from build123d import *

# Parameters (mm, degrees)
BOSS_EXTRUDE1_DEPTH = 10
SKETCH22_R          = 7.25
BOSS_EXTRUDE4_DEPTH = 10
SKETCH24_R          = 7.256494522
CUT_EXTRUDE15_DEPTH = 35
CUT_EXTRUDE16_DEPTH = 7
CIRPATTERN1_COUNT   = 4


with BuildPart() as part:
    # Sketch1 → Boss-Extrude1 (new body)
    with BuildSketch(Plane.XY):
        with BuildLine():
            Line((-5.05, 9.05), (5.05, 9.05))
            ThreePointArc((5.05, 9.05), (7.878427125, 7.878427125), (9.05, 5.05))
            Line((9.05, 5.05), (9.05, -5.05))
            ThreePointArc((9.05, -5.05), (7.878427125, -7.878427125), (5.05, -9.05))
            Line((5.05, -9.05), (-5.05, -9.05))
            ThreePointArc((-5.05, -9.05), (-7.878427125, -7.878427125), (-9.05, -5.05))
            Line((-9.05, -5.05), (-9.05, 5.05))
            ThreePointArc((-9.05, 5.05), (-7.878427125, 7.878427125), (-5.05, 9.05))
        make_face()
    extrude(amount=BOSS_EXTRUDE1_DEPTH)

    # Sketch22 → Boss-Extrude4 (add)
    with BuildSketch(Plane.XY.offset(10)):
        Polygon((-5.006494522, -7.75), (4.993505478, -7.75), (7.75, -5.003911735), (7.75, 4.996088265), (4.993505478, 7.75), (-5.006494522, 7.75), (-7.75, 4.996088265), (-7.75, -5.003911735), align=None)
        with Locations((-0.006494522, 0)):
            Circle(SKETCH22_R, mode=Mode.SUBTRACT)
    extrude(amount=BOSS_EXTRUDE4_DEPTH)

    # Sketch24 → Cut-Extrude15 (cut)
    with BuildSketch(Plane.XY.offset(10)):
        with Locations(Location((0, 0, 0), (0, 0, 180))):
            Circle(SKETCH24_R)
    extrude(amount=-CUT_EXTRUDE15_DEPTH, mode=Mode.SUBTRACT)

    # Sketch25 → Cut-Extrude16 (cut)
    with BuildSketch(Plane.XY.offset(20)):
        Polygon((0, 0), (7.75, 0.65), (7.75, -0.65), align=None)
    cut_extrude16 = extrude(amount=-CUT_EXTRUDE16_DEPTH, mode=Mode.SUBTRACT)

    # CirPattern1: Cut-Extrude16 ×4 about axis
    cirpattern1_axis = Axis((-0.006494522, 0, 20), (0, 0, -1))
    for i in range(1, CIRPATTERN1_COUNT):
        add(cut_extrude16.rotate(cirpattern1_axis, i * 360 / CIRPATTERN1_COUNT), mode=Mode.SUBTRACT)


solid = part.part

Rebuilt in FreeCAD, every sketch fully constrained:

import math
import FreeCAD as App
import Part
import Sketcher
from FreeCAD import Vector

doc = App.newDocument("Part")
params = doc.addObject("Spreadsheet::Sheet", "Params")
for row, (alias, value) in enumerate([
    ("sketch1_radius", "4 mm"),
    ("sketch1_width", "10.1 mm"),
    ("pad1_length", "10 mm"),
    ("sketch2_diameter", "14.5 mm"),
    ("sketch2_width", "10 mm"),
    ("pad2_length", "10 mm"),
    ("pocket1_length", "35 mm"),
    ("sketch4_height", "1.3 mm"),
    ("pocket2_length", "7 mm"),
], start=1):
    params.set(f"A{row}", alias)
    params.set(f"B{row}", "=" + value)
    params.setAlias(f"B{row}", alias)

body = doc.addObject("PartDesign::Body", "Body")

# Sketch on XY plane
sketch1 = body.newObject("Sketcher::SketchObject", "Sketch")
sketch1.AttachmentSupport = (doc.getObject("XY_Plane"), [""])
sketch1.MapMode = "FlatFace"
sketch1.addGeometry(Part.LineSegment(Vector(5.05, 9.05, 0), Vector(-5.05, 9.05, 0)), False)
sketch1.addGeometry(Part.ArcOfCircle(Part.Circle(Vector(-5.05, 5.05, 0), Vector(0, 0, 1), 4), math.radians(90), math.radians(180)), False)
sketch1.addGeometry(Part.LineSegment(Vector(-9.05, 5.05, 0), Vector(-9.05, -5.05, 0)), False)
sketch1.addGeometry(Part.ArcOfCircle(Part.Circle(Vector(-5.05, -5.05, 0), Vector(0, 0, 1), 4), math.radians(180), math.radians(270)), False)
sketch1.addGeometry(Part.LineSegment(Vector(-5.05, -9.05, 0), Vector(5.05, -9.05, 0)), False)
sketch1.addGeometry(Part.ArcOfCircle(Part.Circle(Vector(5.05, -5.05, 0), Vector(0, 0, 1), 4), math.radians(-90), math.radians(0)), False)
sketch1.addGeometry(Part.LineSegment(Vector(9.05, -5.05, 0), Vector(9.05, 5.05, 0)), False)
sketch1.addGeometry(Part.ArcOfCircle(Part.Circle(Vector(5.05, 5.05, 0), Vector(0, 0, 1), 4), math.radians(0), math.radians(90)), False)
sketch1.addConstraint(Sketcher.Constraint("Tangent", 0, 2, 1, 1))
sketch1.addConstraint(Sketcher.Constraint("Tangent", 1, 2, 2, 1))
sketch1.addConstraint(Sketcher.Constraint("Tangent", 2, 2, 3, 1))
sketch1.addConstraint(Sketcher.Constraint("Tangent", 3, 2, 4, 1))
sketch1.addConstraint(Sketcher.Constraint("Tangent", 4, 2, 5, 1))
sketch1.addConstraint(Sketcher.Constraint("Tangent", 5, 2, 6, 1))
sketch1.addConstraint(Sketcher.Constraint("Tangent", 6, 2, 7, 1))
sketch1.addConstraint(Sketcher.Constraint("Tangent", 7, 2, 0, 1))
sketch1.addConstraint(Sketcher.Constraint("Horizontal", 0))
sketch1.addConstraint(Sketcher.Constraint("Vertical", 2))
sketch1.addConstraint(Sketcher.Constraint("Horizontal", 4))
sketch1.addConstraint(Sketcher.Constraint("Vertical", 6))
sketch1.addConstraint(Sketcher.Constraint("Equal", 1, 3))
sketch1.addConstraint(Sketcher.Constraint("Equal", 3, 5))
sketch1.addConstraint(Sketcher.Constraint("Equal", 5, 7))
sketch1.addConstraint(Sketcher.Constraint("Symmetric", 1, 3, 5, 3, -1, 1))
sketch1.addConstraint(Sketcher.Constraint("Equal", 4, 2))
sketch1.addConstraint(Sketcher.Constraint("Radius", 1, 4.0))
sketch1.addConstraint(Sketcher.Constraint("DistanceX", 0, 2, 0, 1, 10.1))
sketch1.setExpression("Constraints[17]", "Params.sketch1_radius")
sketch1.setExpression("Constraints[18]", "Params.sketch1_width")
pad1 = body.newObject("PartDesign::Pad", "Pad")
pad1.Profile = sketch1
pad1.setExpression("Length", "Params.pad1_length")

# Sketch on XY plane
sketch2 = body.newObject("Sketcher::SketchObject", "Sketch001")
sketch2.AttachmentSupport = (doc.getObject("XY_Plane"), [""])
sketch2.MapMode = "FlatFace"
sketch2.AttachmentOffset = App.Placement(Vector(0, 0, 10), App.Rotation())
sketch2.addGeometry(Part.LineSegment(Vector(-5.006495, -7.75, 0), Vector(4.993505, -7.75, 0)), False)
sketch2.addGeometry(Part.LineSegment(Vector(4.993505, -7.75, 0), Vector(7.75, -5.003912, 0)), False)
sketch2.addGeometry(Part.LineSegment(Vector(7.75, -5.003912, 0), Vector(7.75, 4.996088, 0)), False)
sketch2.addGeometry(Part.LineSegment(Vector(7.75, 4.996088, 0), Vector(4.993505, 7.75, 0)), False)
sketch2.addGeometry(Part.LineSegment(Vector(4.993505, 7.75, 0), Vector(-5.006495, 7.75, 0)), False)
sketch2.addGeometry(Part.LineSegment(Vector(-5.006495, 7.75, 0), Vector(-7.75, 4.996088, 0)), False)
sketch2.addGeometry(Part.LineSegment(Vector(-7.75, 4.996088, 0), Vector(-7.75, -5.003912, 0)), False)
sketch2.addGeometry(Part.LineSegment(Vector(-7.75, -5.003912, 0), Vector(-5.006495, -7.75, 0)), False)
sketch2.addGeometry(Part.Circle(Vector(-0.006495, 0, 0), Vector(0, 0, 1), 7.25), False)
sketch2.addConstraint(Sketcher.Constraint("Coincident", 0, 2, 1, 1))
sketch2.addConstraint(Sketcher.Constraint("Coincident", 1, 2, 2, 1))
sketch2.addConstraint(Sketcher.Constraint("Coincident", 2, 2, 3, 1))
sketch2.addConstraint(Sketcher.Constraint("Coincident", 3, 2, 4, 1))
sketch2.addConstraint(Sketcher.Constraint("Coincident", 4, 2, 5, 1))
sketch2.addConstraint(Sketcher.Constraint("Coincident", 5, 2, 6, 1))
sketch2.addConstraint(Sketcher.Constraint("Coincident", 6, 2, 7, 1))
sketch2.addConstraint(Sketcher.Constraint("Coincident", 7, 2, 0, 1))
sketch2.addConstraint(Sketcher.Constraint("Horizontal", 0))
sketch2.addConstraint(Sketcher.Constraint("Vertical", 2))
sketch2.addConstraint(Sketcher.Constraint("Horizontal", 4))
sketch2.addConstraint(Sketcher.Constraint("Vertical", 6))
sketch2.addConstraint(Sketcher.Constraint("Symmetric", 2, 2, 5, 2, -2))
sketch2.addConstraint(Sketcher.Constraint("Symmetric", 0, 2, 3, 2, -1))
sketch2.addConstraint(Sketcher.Constraint("PointOnObject", 8, 3, -1))
sketch2.addConstraint(Sketcher.Constraint("Horizontal", 1, 2, 6, 2))
sketch2.addConstraint(Sketcher.Constraint("Vertical", 4, 2, 7, 2))
sketch2.addConstraint(Sketcher.Constraint("Equal", 4, 2))
sketch2.addConstraint(Sketcher.Constraint("Diameter", 8, 14.5))
sketch2.addConstraint(Sketcher.Constraint("DistanceX", 0, 1, 0, 2, 10.0))
sketch2.addConstraint(Sketcher.Constraint("DistanceX", 8, 3, 0, 2, 5.0))
sketch2.addConstraint(Sketcher.Constraint("DistanceY", 0, 2, 3, 2, 15.5))
sketch2.addConstraint(Sketcher.Constraint("DistanceX", 5, 2, 2, 2, 15.5))
sketch2.addConstraint(Sketcher.Constraint("Distance", 1, 3.890921))
sketch2.addConstraint(Sketcher.Constraint("Distance", 7, 3.881729))
sketch2.setExpression("Constraints[18]", "Params.sketch2_diameter")
sketch2.setExpression("Constraints[19]", "Params.sketch2_width")
pad2 = body.newObject("PartDesign::Pad", "Pad001")
pad2.Profile = sketch2
pad2.setExpression("Length", "Params.pad2_length")

# Sketch on XY plane
sketch3 = body.newObject("Sketcher::SketchObject", "Sketch002")
sketch3.AttachmentSupport = (doc.getObject("XY_Plane"), [""])
sketch3.MapMode = "FlatFace"
sketch3.AttachmentOffset = App.Placement(Vector(0, 0, 10), App.Rotation())
sketch3.addGeometry(Part.Circle(Vector(0, 0, 0), Vector(0, 0, 1), 7.256495), False)
sketch3.addConstraint(Sketcher.Constraint("Coincident", 0, 3, -1, 1))
sketch3.addConstraint(Sketcher.Constraint("Diameter", 0, 14.512989))
pocket1 = body.newObject("PartDesign::Pocket", "Pocket")
pocket1.Profile = sketch3
pocket1.setExpression("Length", "Params.pocket1_length")

# Sketch on XY plane
sketch4 = body.newObject("Sketcher::SketchObject", "Sketch003")
sketch4.AttachmentSupport = (doc.getObject("XY_Plane"), [""])
sketch4.MapMode = "FlatFace"
sketch4.AttachmentOffset = App.Placement(Vector(0, 0, 20), App.Rotation())
sketch4.addGeometry(Part.LineSegment(Vector(7.75, 0.65, 0), Vector(0, 0, 0)), False)
sketch4.addGeometry(Part.LineSegment(Vector(0, 0, 0), Vector(7.75, -0.65, 0)), False)
sketch4.addGeometry(Part.LineSegment(Vector(7.75, -0.65, 0), Vector(7.75, 0.65, 0)), False)
sketch4.addConstraint(Sketcher.Constraint("Coincident", 0, 2, 1, 1))
sketch4.addConstraint(Sketcher.Constraint("Coincident", 1, 2, 2, 1))
sketch4.addConstraint(Sketcher.Constraint("Coincident", 2, 2, 0, 1))
sketch4.addConstraint(Sketcher.Constraint("Vertical", 2))
sketch4.addConstraint(Sketcher.Constraint("Coincident", 0, 2, -1, 1))
sketch4.addConstraint(Sketcher.Constraint("Equal", 0, 1))
sketch4.addConstraint(Sketcher.Constraint("DistanceY", 2, 1, 2, 2, 1.3))
sketch4.addConstraint(Sketcher.Constraint("DistanceX", -1, 1, 1, 2, 7.75))
sketch4.setExpression("Constraints[6]", "Params.sketch4_height")
pocket2 = body.newObject("PartDesign::Pocket", "Pocket001")
pocket2.Profile = sketch4
pocket2.setExpression("Length", "Params.pocket2_length")
doc.recompute()

datumline = body.newObject("PartDesign::Line", "DatumLine")
datumline.Placement = App.Placement(Vector(-0.006495, 0, 0), App.Rotation(Vector(0, 0, 1), Vector(0, 0, -1)))
polarpattern = body.newObject("PartDesign::PolarPattern", "PolarPattern")
polarpattern.Originals = [pocket2]
polarpattern.Axis = (datumline, [""])
polarpattern.Angle = 360
polarpattern.Occurrences = 4
body.Tip = polarpattern

doc.recompute()
